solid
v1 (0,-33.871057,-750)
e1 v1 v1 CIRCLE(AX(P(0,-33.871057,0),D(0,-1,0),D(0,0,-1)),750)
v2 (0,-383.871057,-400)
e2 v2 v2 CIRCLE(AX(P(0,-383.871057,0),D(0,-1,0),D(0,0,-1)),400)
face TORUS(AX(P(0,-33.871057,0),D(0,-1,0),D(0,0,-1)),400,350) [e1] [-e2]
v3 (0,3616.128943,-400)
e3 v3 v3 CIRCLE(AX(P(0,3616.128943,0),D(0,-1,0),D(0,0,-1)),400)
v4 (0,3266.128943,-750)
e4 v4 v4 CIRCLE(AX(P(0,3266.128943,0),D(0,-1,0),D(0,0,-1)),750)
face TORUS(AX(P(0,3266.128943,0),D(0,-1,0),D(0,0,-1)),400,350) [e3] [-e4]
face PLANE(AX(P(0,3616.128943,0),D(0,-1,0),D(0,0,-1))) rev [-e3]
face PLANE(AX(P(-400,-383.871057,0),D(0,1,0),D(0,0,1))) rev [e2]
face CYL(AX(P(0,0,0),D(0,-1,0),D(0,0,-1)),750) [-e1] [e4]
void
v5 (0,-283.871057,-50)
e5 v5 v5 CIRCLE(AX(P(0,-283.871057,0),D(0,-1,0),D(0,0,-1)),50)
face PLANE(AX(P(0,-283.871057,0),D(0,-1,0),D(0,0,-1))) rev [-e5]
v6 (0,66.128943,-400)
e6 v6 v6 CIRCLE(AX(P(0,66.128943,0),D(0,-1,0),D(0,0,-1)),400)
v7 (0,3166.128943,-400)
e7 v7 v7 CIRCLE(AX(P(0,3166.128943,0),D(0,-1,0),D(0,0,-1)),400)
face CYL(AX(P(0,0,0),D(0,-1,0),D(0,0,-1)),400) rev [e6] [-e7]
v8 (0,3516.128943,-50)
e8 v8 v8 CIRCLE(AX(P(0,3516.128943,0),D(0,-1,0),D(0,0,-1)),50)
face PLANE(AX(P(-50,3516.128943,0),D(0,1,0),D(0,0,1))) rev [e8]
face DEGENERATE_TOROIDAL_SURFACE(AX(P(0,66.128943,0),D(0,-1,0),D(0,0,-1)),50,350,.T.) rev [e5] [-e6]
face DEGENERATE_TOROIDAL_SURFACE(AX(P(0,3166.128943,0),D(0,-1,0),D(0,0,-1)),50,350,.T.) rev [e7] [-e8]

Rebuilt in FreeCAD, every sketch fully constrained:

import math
import FreeCAD as App
import Part
import Sketcher
from FreeCAD import Vector

doc = App.newDocument("Part")
body = doc.addObject("PartDesign::Body", "Body")

# Sketch on XY plane
sketch1 = body.newObject("Sketcher::SketchObject", "Sketch")
sketch1.AttachmentSupport = (doc.getObject("XY_Plane"), [""])
sketch1.MapMode = "FlatFace"
sketch1.addGeometry(Part.LineSegment(Vector(0, 3616, 0), Vector(-400, 3616, 0)), False)
sketch1.addGeometry(Part.ArcOfCircle(Part.Circle(Vector(-400, 3266, 0), Vector(0, 0, 1), 350), math.radians(90), math.radians(180)), False)
sketch1.addGeometry(Part.LineSegment(Vector(-750, 3266, 0), Vector(-750, -34, 0)), False)
sketch1.addGeometry(Part.ArcOfCircle(Part.Circle(Vector(-400, -34, 0), Vector(0, 0, 1), 350), math.radians(180), math.radians(270)), False)
sketch1.addGeometry(Part.LineSegment(Vector(-400, -384, 0), Vector(0, -384, 0)), False)
sketch1.addGeometry(Part.LineSegment(Vector(0, -384, 0), Vector(0, -284, 0)), False)
sketch1.addGeometry(Part.LineSegment(Vector(0, -284, 0), Vector(-50, -284, 0)), False)
sketch1.addGeometry(Part.ArcOfCircle(Part.Circle(Vector(-50, 66, 0), Vector(0, 0, 1), 350), math.radians(180), math.radians(270)), False)
sketch1.addGeometry(Part.LineSegment(Vector(-400, 66, 0), Vector(-400, 3166, 0)), False)
sketch1.addGeometry(Part.ArcOfCircle(Part.Circle(Vector(-50, 3166, 0), Vector(0, 0, 1), 350), math.radians(90), math.radians(180)), False)
sketch1.addGeometry(Part.LineSegment(Vector(-50, 3516, 0), Vector(0, 3516, 0)), False)
sketch1.addGeometry(Part.LineSegment(Vector(0, 3516, 0), Vector(0, 3616, 0)), False)
sketch1.addConstraint(Sketcher.Constraint("Tangent", 0, 2, 1, 1))
sketch1.addConstraint(Sketcher.Constraint("Tangent", 1, 2, 2, 1))
sketch1.addConstraint(Sketcher.Constraint("Tangent", 2, 2, 3, 1))
sketch1.addConstraint(Sketcher.Constraint("Tangent", 3, 2, 4, 1))
sketch1.addConstraint(Sketcher.Constraint("Coincident", 4, 2, 5, 1))
sketch1.addConstraint(Sketcher.Constraint("Coincident", 5, 2, 6, 1))
sketch1.addConstraint(Sketcher.Constraint("Tangent", 6, 2, 7, 2))
sketch1.addConstraint(Sketcher.Constraint("Tangent", 7, 1, 8, 1))
sketch1.addConstraint(Sketcher.Constraint("Tangent", 8, 2, 9, 2))
sketch1.addConstraint(Sketcher.Constraint("Tangent", 9, 1, 10, 1))
sketch1.addConstraint(Sketcher.Constraint("Coincident", 10, 2, 11, 1))
sketch1.addConstraint(Sketcher.Constraint("Coincident", 11, 2, 0, 1))
sketch1.addConstraint(Sketcher.Constraint("Horizontal", 0))
sketch1.addConstraint(Sketcher.Constraint("Vertical", 2))
sketch1.addConstraint(Sketcher.Constraint("Horizontal", 4))
sketch1.addConstraint(Sketcher.Constraint("Vertical", 5))
sketch1.addConstraint(Sketcher.Constraint("Horizontal", 6))
sketch1.addConstraint(Sketcher.Constraint("Vertical", 8))
sketch1.addConstraint(Sketcher.Constraint("Horizontal", 10))
sketch1.addConstraint(Sketcher.Constraint("Vertical", 11))
sketch1.addConstraint(Sketcher.Constraint("Equal", 1, 3))
sketch1.addConstraint(Sketcher.Constraint("Equal", 3, 7))
sketch1.addConstraint(Sketcher.Constraint("Equal", 7, 9))
sketch1.addConstraint(Sketcher.Constraint("PointOnObject", 4, 2, -2))
sketch1.addConstraint(Sketcher.Constraint("PointOnObject", 10, 2, -2))
sketch1.addConstraint(Sketcher.Constraint("Equal", 5, 11))
sketch1.addConstraint(Sketcher.Constraint("Radius", 1, 350.0))
sketch1.addConstraint(Sketcher.Constraint("DistanceX", 0, 2, 0, 1, 400.0))
sketch1.addConstraint(Sketcher.Constraint("DistanceX", 6, 2, 6, 1, 50.0))
sketch1.addConstraint(Sketcher.Constraint("DistanceY", 2, 2, 2, 1, 3300.0))
sketch1.addConstraint(Sketcher.Constraint("DistanceY", 5, 1, 5, 2, 100.0))
sketch1.addConstraint(Sketcher.Constraint("DistanceY", -1, 1, 1, 3, 3266.128943))
revolution = body.newObject("PartDesign::Revolution", "Revolution")
revolution.Profile = sketch1
revolution.ReferenceAxis = (sketch1, ["V_Axis"])
revolution.Angle = 360

doc.recompute()
